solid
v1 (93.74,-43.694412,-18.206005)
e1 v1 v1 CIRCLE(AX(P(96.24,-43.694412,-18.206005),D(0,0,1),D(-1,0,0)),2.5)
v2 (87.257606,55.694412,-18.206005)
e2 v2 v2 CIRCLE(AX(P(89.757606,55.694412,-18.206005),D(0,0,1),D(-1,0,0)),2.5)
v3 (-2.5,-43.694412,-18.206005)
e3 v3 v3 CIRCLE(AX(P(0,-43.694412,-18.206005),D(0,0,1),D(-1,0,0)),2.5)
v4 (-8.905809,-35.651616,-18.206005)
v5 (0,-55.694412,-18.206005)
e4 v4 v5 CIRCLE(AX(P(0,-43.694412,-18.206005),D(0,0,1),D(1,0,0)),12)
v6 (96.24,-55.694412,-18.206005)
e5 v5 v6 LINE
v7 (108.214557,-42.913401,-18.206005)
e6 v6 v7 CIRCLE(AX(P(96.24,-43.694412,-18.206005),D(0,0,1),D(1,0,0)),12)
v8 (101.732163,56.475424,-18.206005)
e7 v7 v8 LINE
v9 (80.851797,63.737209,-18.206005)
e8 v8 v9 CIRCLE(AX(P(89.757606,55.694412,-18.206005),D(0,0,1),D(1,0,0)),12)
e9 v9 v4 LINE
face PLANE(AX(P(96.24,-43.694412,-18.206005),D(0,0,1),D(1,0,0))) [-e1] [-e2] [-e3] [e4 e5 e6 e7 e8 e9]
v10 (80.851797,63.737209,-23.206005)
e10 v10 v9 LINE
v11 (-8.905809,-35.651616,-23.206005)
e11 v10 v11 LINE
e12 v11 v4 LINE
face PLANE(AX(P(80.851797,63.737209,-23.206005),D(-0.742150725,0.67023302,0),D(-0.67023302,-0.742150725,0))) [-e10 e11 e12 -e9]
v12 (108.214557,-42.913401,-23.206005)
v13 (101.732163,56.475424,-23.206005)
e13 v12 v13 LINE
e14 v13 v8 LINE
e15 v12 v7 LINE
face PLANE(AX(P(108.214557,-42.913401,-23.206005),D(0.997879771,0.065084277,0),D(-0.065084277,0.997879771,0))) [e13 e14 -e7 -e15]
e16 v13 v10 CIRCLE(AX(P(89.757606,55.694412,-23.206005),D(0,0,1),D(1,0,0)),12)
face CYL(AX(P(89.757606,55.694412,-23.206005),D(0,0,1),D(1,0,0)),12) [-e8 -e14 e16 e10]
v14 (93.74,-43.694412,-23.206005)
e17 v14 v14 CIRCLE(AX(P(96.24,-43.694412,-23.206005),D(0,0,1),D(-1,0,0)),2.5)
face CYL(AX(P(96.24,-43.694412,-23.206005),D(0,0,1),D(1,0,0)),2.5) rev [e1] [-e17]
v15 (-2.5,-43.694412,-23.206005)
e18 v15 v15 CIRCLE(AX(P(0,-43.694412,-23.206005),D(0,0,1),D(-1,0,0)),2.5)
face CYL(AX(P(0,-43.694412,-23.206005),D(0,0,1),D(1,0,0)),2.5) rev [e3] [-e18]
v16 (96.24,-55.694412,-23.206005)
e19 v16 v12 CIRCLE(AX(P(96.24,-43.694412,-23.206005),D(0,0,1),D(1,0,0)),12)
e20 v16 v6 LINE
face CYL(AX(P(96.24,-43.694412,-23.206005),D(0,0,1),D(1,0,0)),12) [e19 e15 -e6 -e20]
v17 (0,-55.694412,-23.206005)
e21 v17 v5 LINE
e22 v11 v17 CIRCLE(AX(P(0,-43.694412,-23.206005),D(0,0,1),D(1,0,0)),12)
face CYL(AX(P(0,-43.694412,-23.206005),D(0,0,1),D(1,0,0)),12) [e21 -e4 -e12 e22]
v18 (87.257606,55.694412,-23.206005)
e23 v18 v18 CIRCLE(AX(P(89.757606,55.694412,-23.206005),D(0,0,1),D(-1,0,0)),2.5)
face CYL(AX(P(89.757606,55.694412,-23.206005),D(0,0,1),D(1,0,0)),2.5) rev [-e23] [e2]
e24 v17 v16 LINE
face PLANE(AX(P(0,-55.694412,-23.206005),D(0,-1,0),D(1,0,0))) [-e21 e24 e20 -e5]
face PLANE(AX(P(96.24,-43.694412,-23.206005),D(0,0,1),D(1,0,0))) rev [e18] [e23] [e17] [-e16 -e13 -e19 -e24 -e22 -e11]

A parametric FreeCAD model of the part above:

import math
import FreeCAD as App
import Part
import Sketcher

V = App.Vector

doc = App.newDocument("Part")
params = doc.addObject("Spreadsheet::Sheet", "Params")
for row, (alias, value) in enumerate([
    ("sketch1_diameter", "5 mm"),
    ("sketch1_radius", "12 mm"),
    ("sketch1_length", "99.6 mm"),
    ("sketch1_width", "96.24 mm"),
    ("sketch1_length2", "133.92 mm"),
    ("pad1_length", "5 mm"),
], start=1):
    params.set(f"A{row}", alias)
    params.set(f"B{row}", "=" + value)
    params.setAlias(f"B{row}", alias)

body = doc.addObject("PartDesign::Body", "Body")

sketch1 = doc.addObject("Sketcher::SketchObject", "Sketch")
body.addObject(sketch1)
sketch1.AttachmentSupport = (doc.XY_Plane, [""])
sketch1.MapMode = "FlatFace"
sketch1.AttachmentOffset = App.Placement(V(0, 0, -18.206005), App.Rotation())
sketch1.addGeometry(Part.LineSegment(V(108.2, -42.9, 0), V(101.7, 56.5, 0)), False)
sketch1.addGeometry(Part.ArcOfCircle(Part.Circle(V(89.8, 55.7, 0), V(0, 0, 1), 12), math.radians(4), math.radians(138)), False)
sketch1.addGeometry(Part.LineSegment(V(80.9, 63.7, 0), V(-8.9, -35.7, 0)), False)
sketch1.addGeometry(Part.ArcOfCircle(Part.Circle(V(0, -43.7, 0), V(0, 0, 1), 12), math.radians(138), math.radians(270)), False)
sketch1.addGeometry(Part.LineSegment(V(0, -55.7, 0), V(96.2, -55.7, 0)), False)
sketch1.addGeometry(Part.ArcOfCircle(Part.Circle(V(96.2, -43.7, 0), V(0, 0, 1), 12), math.radians(-90), math.radians(4)), False)
sketch1.addGeometry(Part.Circle(V(0, -43.7, 0), V(0, 0, 1), 2.5), False)
sketch1.addGeometry(Part.Circle(V(96.2, -43.7, 0), V(0, 0, 1), 2.5), False)
sketch1.addGeometry(Part.Circle(V(89.8, 55.7, 0), V(0, 0, 1), 2.5), False)
sketch1.addConstraint(Sketcher.Constraint("Tangent", 0, 2, 1, 1))
sketch1.addConstraint(Sketcher.Constraint("Tangent", 1, 2, 2, 1))
sketch1.addConstraint(Sketcher.Constraint("Tangent", 2, 2, 3, 1))
sketch1.addConstraint(Sketcher.Constraint("Tangent", 3, 2, 4, 1))
sketch1.addConstraint(Sketcher.Constraint("Tangent", 4, 2, 5, 1))
sketch1.addConstraint(Sketcher.Constraint("Tangent", 5, 2, 0, 1))
sketch1.addConstraint(Sketcher.Constraint("Horizontal", 4))
sketch1.addConstraint(Sketcher.Constraint("Coincident", 6, 3, 3, 3))
sketch1.addConstraint(Sketcher.Constraint("Coincident", 7, 3, 5, 3))
sketch1.addConstraint(Sketcher.Constraint("Coincident", 8, 3, 1, 3))
sketch1.addConstraint(Sketcher.Constraint("Equal", 1, 3))
sketch1.addConstraint(Sketcher.Constraint("Equal", 3, 5))
sketch1.addConstraint(Sketcher.Constraint("Equal", 6, 7))
sketch1.addConstraint(Sketcher.Constraint("Equal", 7, 8))
sketch1.addConstraint(Sketcher.Constraint("PointOnObject", 3, 3, -2))
sketch1.addConstraint(Sketcher.Constraint("Diameter", 6, 5.0))
sketch1.addConstraint(Sketcher.Constraint("Radius", 1, 12.0))
sketch1.addConstraint(Sketcher.Constraint("Distance", 0, 99.6))
sketch1.addConstraint(Sketcher.Constraint("DistanceX", 4, 1, 4, 2, 96.24))
sketch1.addConstraint(Sketcher.Constraint("Distance", 2, 133.92))
sketch1.addConstraint(Sketcher.Constraint("DistanceY", 5, 2, -1, 1, 42.913401))
sketch1.setExpression("Constraints[15]", "Params.sketch1_diameter")
sketch1.setExpression("Constraints[16]", "Params.sketch1_radius")
sketch1.setExpression("Constraints[17]", "Params.sketch1_length")
sketch1.setExpression("Constraints[18]", "Params.sketch1_width")
sketch1.setExpression("Constraints[19]", "Params.sketch1_length2")
pad1 = doc.addObject("PartDesign::Pad", "Pad")
body.addObject(pad1)
pad1.Profile = sketch1
pad1.setExpression("Length", "Params.pad1_length")
pad1.Reversed = True

doc.recompute()
